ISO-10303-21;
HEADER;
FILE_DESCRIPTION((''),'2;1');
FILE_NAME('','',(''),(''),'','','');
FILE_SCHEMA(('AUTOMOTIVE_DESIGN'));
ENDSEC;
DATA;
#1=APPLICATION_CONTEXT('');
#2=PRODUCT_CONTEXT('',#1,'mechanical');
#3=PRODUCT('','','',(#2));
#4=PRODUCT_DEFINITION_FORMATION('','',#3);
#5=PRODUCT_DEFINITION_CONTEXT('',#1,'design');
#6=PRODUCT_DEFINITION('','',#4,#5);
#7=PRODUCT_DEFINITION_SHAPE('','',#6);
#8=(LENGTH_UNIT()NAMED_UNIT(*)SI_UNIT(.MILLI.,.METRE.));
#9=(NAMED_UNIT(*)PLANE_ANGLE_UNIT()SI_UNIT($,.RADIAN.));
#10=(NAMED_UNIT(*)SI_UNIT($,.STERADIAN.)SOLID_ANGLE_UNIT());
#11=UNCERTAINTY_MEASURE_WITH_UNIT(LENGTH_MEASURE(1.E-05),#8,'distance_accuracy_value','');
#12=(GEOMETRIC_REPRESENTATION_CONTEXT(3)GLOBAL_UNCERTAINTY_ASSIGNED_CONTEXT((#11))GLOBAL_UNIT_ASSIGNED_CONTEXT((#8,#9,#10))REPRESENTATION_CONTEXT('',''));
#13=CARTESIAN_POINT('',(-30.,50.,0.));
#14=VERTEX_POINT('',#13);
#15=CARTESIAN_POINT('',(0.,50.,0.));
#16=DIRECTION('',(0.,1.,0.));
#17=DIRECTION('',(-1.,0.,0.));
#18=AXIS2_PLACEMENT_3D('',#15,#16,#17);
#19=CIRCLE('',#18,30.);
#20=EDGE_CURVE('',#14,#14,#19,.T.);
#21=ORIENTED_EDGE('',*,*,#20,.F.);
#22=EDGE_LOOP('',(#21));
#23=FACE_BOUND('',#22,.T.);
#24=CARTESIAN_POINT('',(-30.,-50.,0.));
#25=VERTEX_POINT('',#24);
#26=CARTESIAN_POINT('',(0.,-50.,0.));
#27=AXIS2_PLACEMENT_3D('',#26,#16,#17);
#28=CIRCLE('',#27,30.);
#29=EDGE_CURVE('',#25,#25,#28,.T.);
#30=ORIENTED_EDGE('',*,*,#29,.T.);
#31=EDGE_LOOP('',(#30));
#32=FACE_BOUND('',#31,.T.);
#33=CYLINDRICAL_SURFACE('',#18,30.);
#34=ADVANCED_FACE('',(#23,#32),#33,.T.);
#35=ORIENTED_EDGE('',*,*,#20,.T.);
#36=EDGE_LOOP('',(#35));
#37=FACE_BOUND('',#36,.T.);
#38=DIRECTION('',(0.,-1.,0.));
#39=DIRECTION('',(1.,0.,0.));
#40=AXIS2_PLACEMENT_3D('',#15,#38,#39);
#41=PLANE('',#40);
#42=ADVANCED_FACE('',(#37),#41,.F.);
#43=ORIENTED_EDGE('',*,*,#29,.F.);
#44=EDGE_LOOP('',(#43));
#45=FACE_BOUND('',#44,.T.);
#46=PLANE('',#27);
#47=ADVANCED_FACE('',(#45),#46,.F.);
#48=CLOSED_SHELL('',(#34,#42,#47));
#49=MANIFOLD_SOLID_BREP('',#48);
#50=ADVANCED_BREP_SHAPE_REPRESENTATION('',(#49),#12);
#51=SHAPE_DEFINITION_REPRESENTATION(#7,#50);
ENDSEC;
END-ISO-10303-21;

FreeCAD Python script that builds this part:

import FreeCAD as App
import Part
import Sketcher

doc = App.newDocument("Part")
params = doc.addObject("Spreadsheet::Sheet", "Params")
for row, (alias, value) in enumerate([
    ("sketch1_width", "30 mm"),
    ("sketch1_height", "100 mm"),
    ("revolution_angle", "360 deg"),
], start=1):
    params.set(f"A{row}", alias)
    params.set(f"B{row}", "=" + value)
    params.setAlias(f"B{row}", alias)

body = doc.addObject("PartDesign::Body", "Body")

# Sketch on XY plane
sketch1 = body.newObject("Sketcher::SketchObject", "Sketch")
sketch1.AttachmentSupport = (doc.getObject("XY_Plane"), [""])
sketch1.MapMode = "FlatFace"
sketch1.addGeometry(Part.LineSegment(App.Vector(0, 50, 0), App.Vector(0, -50, 0)), False)
sketch1.addGeometry(Part.LineSegment(App.Vector(0, -50, 0), App.Vector(30, -50, 0)), False)
sketch1.addGeometry(Part.LineSegment(App.Vector(30, -50, 0), App.Vector(30, 50, 0)), False)
sketch1.addGeometry(Part.LineSegment(App.Vector(30, 50, 0), App.Vector(0, 50, 0)), False)
sketch1.addConstraint(Sketcher.Constraint("Coincident", 0, 2, 1, 1))
sketch1.addConstraint(Sketcher.Constraint("Coincident", 1, 2, 2, 1))
sketch1.addConstraint(Sketcher.Constraint("Coincident", 2, 2, 3, 1))
sketch1.addConstraint(Sketcher.Constraint("Coincident", 3, 2, 0, 1))
sketch1.addConstraint(Sketcher.Constraint("Vertical", 0))
sketch1.addConstraint(Sketcher.Constraint("Horizontal", 1))
sketch1.addConstraint(Sketcher.Constraint("Vertical", 2))
sketch1.addConstraint(Sketcher.Constraint("Horizontal", 3))
sketch1.addConstraint(Sketcher.Constraint("Symmetric", 0, 2, 3, 2, -1, 1))
sketch1.addConstraint(Sketcher.Constraint("DistanceX", 1, 1, 1, 2, 30.0))
sketch1.addConstraint(Sketcher.Constraint("DistanceY", 0, 2, 0, 1, 100.0))
sketch1.setExpression("Constraints[9]", "Params.sketch1_width")
sketch1.setExpression("Constraints[10]", "Params.sketch1_height")
revolution = body.newObject("PartDesign::Revolution", "Revolution")
revolution.Profile = sketch1
revolution.ReferenceAxis = (sketch1, ["V_Axis"])
revolution.setExpression("Angle", "Params.revolution_angle")

doc.recompute()
